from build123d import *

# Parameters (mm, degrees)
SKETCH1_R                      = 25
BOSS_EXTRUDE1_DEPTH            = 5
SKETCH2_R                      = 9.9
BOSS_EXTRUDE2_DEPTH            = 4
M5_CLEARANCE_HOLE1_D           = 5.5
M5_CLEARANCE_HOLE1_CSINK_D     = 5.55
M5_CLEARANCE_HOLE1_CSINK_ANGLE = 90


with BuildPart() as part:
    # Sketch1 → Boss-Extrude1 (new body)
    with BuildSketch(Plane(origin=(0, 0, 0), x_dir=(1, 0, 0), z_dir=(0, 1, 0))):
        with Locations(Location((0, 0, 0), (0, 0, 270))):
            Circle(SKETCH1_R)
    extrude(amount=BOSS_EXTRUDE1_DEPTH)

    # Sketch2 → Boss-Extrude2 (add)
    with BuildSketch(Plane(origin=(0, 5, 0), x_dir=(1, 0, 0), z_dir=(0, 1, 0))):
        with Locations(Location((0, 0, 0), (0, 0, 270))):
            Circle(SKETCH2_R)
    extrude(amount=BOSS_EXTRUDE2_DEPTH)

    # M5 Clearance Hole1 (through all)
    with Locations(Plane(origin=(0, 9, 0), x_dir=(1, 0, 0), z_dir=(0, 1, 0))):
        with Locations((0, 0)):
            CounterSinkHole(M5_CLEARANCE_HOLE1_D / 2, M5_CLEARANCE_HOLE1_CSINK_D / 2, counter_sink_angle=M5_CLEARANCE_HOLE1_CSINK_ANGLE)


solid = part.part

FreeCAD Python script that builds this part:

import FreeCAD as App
import Part
import Sketcher

V = App.Vector

doc = App.newDocument("Part")
body = doc.addObject("PartDesign::Body", "Body")

# Sketch on XZ plane
sketch1 = doc.addObject("Sketcher::SketchObject", "Sketch")
body.addObject(sketch1)
sketch1.AttachmentSupport = (doc.XZ_Plane, [""])
sketch1.MapMode = "FlatFace"
sketch1.addGeometry(Part.Circle(V(0, 0, 0), V(0, 0, 1), 25), False)
sketch1.addConstraint(Sketcher.Constraint("Coincident", 0, 3, -1, 1))
sketch1.addConstraint(Sketcher.Constraint("Diameter", 0, 50.0))
pad1 = doc.addObject("PartDesign::Pad", "Pad")
body.addObject(pad1)
pad1.Profile = sketch1
pad1.Length = 5
pad1.Reversed = True

# Sketch on XZ plane
sketch2 = doc.addObject("Sketcher::SketchObject", "Sketch001")
body.addObject(sketch2)
sketch2.AttachmentSupport = (doc.XZ_Plane, [""])
sketch2.MapMode = "FlatFace"
sketch2.AttachmentOffset = App.Placement(V(0, 0, -5), App.Rotation())
sketch2.addGeometry(Part.Circle(V(0, 0, 0), V(0, 0, 1), 9.9), False)
sketch2.addConstraint(Sketcher.Constraint("Coincident", 0, 3, -1, 1))
sketch2.addConstraint(Sketcher.Constraint("Diameter", 0, 19.8))
pad2 = doc.addObject("PartDesign::Pad", "Pad001")
body.addObject(pad2)
pad2.Profile = sketch2
pad2.Length = 4
pad2.Reversed = True

# Sketch on XZ plane
sketch3 = doc.addObject("Sketcher::SketchObject", "Sketch002")
body.addObject(sketch3)
sketch3.AttachmentSupport = (doc.XZ_Plane, [""])
sketch3.MapMode = "FlatFace"
sketch3.AttachmentOffset = App.Placement(V(0, 0, -9), App.Rotation())
sketch3.addGeometry(Part.Circle(V(0, 0, 0), V(0, 0, 1), 2.75), False)
sketch3.addConstraint(Sketcher.Constraint("Coincident", 0, 3, -1, 1))
sketch3.addConstraint(Sketcher.Constraint("Diameter", 0, 5.5))
doc.recompute()
hole = doc.addObject("PartDesign::Hole", "Hole")
body.addObject(hole)
hole.Profile = sketch3
hole.ThreadType = "None"
hole.Diameter = 5.5
hole.DepthType = "ThroughAll"
hole.HoleCutType = "Countersink"
hole.HoleCutDiameter = 5.55
hole.HoleCutCountersinkAngle = 90
hole.Reversed = True

doc.recompute()
